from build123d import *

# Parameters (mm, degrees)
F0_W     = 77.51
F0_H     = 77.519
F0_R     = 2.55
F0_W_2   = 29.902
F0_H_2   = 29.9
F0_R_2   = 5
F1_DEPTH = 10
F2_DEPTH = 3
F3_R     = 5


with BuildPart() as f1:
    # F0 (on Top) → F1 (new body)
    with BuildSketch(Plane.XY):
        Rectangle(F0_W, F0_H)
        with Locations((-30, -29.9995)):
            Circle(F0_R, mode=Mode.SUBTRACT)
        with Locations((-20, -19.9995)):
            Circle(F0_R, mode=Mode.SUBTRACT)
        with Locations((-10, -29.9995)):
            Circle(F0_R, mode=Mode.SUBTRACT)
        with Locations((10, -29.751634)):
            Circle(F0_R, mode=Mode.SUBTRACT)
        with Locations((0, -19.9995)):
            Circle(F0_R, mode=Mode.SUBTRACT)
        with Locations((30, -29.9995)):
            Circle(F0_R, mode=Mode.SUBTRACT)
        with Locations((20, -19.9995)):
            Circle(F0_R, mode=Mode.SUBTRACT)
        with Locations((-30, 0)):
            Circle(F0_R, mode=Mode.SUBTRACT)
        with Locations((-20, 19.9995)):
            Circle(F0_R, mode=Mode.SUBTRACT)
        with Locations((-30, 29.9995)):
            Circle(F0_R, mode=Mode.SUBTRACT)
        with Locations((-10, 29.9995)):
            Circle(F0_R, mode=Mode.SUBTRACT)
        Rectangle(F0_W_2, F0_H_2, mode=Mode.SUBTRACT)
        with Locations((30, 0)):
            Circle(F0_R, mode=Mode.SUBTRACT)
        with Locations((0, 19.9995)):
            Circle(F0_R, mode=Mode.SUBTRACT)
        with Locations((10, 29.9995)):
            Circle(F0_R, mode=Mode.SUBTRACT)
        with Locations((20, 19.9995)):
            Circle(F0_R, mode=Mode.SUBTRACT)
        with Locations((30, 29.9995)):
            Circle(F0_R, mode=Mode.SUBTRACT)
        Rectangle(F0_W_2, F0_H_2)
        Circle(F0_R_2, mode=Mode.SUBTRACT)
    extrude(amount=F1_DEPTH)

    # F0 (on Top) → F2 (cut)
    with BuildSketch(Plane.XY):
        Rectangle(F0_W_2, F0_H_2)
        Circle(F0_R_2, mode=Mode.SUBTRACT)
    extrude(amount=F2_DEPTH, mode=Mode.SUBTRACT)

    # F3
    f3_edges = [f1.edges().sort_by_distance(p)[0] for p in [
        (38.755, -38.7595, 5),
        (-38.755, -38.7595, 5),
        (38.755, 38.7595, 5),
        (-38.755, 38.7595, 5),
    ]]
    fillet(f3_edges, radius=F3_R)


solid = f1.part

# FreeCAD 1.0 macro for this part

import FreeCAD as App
import Part
import Sketcher
from FreeCAD import Vector


def edges_at(feature, points):
    """Names of the edges that pass closest to the given points."""
    edges = feature.Shape.Edges
    near = lambda p: min(range(len(edges)), key=lambda i: edges[i].distToShape(Part.Vertex(*p))[0])
    return sorted({f"Edge{near(p) + 1}" for p in points})


def add_polygon(sketch, points):
    """Adds a closed chain of lines whose ends are joined by coincident constraints."""
    first, n = sketch.GeometryCount, len(points)
    for a, b in zip(points, points[1:] + points[:1]):
        sketch.addGeometry(Part.LineSegment(App.Vector(*a, 0), App.Vector(*b, 0)), False)
    for i in range(n):
        sketch.addConstraint(Sketcher.Constraint("Coincident", first + i, 2, first + (i + 1) % n, 1))

doc = App.newDocument("Part")
params = doc.addObject("Spreadsheet::Sheet", "Params")
for row, (alias, value) in enumerate([
    ("sketch1_diameter", "10 mm"),
    ("sketch1_diameter2", "5.1 mm"),
    ("sketch1_width", "77.51 mm"),
    ("pad1_length", "10 mm"),
    ("sketch2_diameter", "10 mm"),
    ("sketch2_height", "29.9 mm"),
    ("pocket1_length", "3 mm"),
    ("fillet_radius", "5 mm"),
], start=1):
    params.set(f"A{row}", alias)
    params.set(f"B{row}", "=" + value)
    params.setAlias(f"B{row}", alias)

body = doc.addObject("PartDesign::Body", "Body")

# Sketch on XY plane
sketch1 = body.newObject("Sketcher::SketchObject", "Sketch")
sketch1.AttachmentSupport = (doc.getObject("XY_Plane"), [""])
sketch1.MapMode = "FlatFace"
add_polygon(sketch1, [(-38.8, 38.8), (-38.8, -38.8), (38.8, -38.8), (38.8, 38.8)])  # lines 0-3
sketch1.addGeometry(Part.Circle(Vector(-30, -30, 0), Vector(0, 0, 1), 2.5), False)  # 4
sketch1.addGeometry(Part.Circle(Vector(-20, -20, 0), Vector(0, 0, 1), 2.5), False)  # 5
sketch1.addGeometry(Part.Circle(Vector(-10, -30, 0), Vector(0, 0, 1), 2.5), False)  # 6
sketch1.addGeometry(Part.Circle(Vector(10, -29.8, 0), Vector(0, 0, 1), 2.5), False)  # 7
sketch1.addGeometry(Part.Circle(Vector(0, -20, 0), Vector(0, 0, 1), 2.5), False)  # 8
sketch1.addGeometry(Part.Circle(Vector(30, -30, 0), Vector(0, 0, 1), 2.5), False)  # 9
sketch1.addGeometry(Part.Circle(Vector(20, -20, 0), Vector(0, 0, 1), 2.5), False)  # 10
sketch1.addGeometry(Part.Circle(Vector(-30, 0, 0), Vector(0, 0, 1), 2.5), False)  # 11
sketch1.addGeometry(Part.Circle(Vector(-20, 20, 0), Vector(0, 0, 1), 2.5), False)  # 12
sketch1.addGeometry(Part.Circle(Vector(-30, 30, 0), Vector(0, 0, 1), 2.5), False)  # 13
sketch1.addGeometry(Part.Circle(Vector(-10, 30, 0), Vector(0, 0, 1), 2.5), False)  # 14
sketch1.addGeometry(Part.Circle(Vector(0, 0, 0), Vector(0, 0, 1), 5), False)  # 15
sketch1.addGeometry(Part.Circle(Vector(30, 0, 0), Vector(0, 0, 1), 2.5), False)  # 16
sketch1.addGeometry(Part.Circle(Vector(0, 20, 0), Vector(0, 0, 1), 2.5), False)  # 17
sketch1.addGeometry(Part.Circle(Vector(10, 30, 0), Vector(0, 0, 1), 2.5), False)  # 18
sketch1.addGeometry(Part.Circle(Vector(20, 20, 0), Vector(0, 0, 1), 2.5), False)  # 19
sketch1.addGeometry(Part.Circle(Vector(30, 30, 0), Vector(0, 0, 1), 2.5), False)  # 20
sketch1.addConstraint([
    Sketcher.Constraint("Vertical", 0),
    Sketcher.Constraint("Horizontal", 1),
    Sketcher.Constraint("Vertical", 2),
    Sketcher.Constraint("Horizontal", 3),
    Sketcher.Constraint("Coincident", 15, 3, -1, 1),
    Sketcher.Constraint("Equal", 4, 5),
    Sketcher.Constraint("Equal", 5, 6),
    Sketcher.Constraint("Equal", 6, 7),
    Sketcher.Constraint("Equal", 7, 8),
    Sketcher.Constraint("Equal", 8, 9),
    Sketcher.Constraint("Equal", 9, 10),
    Sketcher.Constraint("Equal", 10, 11),
    Sketcher.Constraint("Equal", 11, 12),
    Sketcher.Constraint("Equal", 12, 13),
    Sketcher.Constraint("Equal", 13, 14),
    Sketcher.Constraint("Equal", 14, 16),
    Sketcher.Constraint("Equal", 16, 17),
    Sketcher.Constraint("Equal", 17, 18),
    Sketcher.Constraint("Equal", 18, 19),
    Sketcher.Constraint("Equal", 19, 20),
    Sketcher.Constraint("Symmetric", 10, 3, 12, 3, -1, 1),
    Sketcher.Constraint("Symmetric", 9, 3, 13, 3, -1, 1),
    Sketcher.Constraint("Symmetric", 11, 3, 16, 3, -1, 1),
    Sketcher.Constraint("Symmetric", 8, 3, 17, 3, -1, 1),
    Sketcher.Constraint("Symmetric", 6, 3, 18, 3, -1, 1),
    Sketcher.Constraint("Symmetric", 5, 3, 19, 3, -1, 1),
    Sketcher.Constraint("Symmetric", 4, 3, 20, 3, -1, 1),
    Sketcher.Constraint("Symmetric", 0, 2, 2, 2, -1, 1),
    Sketcher.Constraint("Symmetric", 4, 3, 9, 3, -2),
    Sketcher.Constraint("Symmetric", 5, 3, 10, 3, -2),
    Sketcher.Constraint("Symmetric", 14, 3, 18, 3, -2),
    Sketcher.Constraint("PointOnObject", 8, 3, -2),
    Sketcher.Constraint("PointOnObject", 11, 3, -1),
    Sketcher.Constraint("Horizontal", 4, 3, 6, 3),
    Sketcher.Constraint("Horizontal", 5, 3, 8, 3),
    Sketcher.Constraint("Vertical", 4, 3, 11, 3),
    Sketcher.Constraint("Vertical", 7, 3, 18, 3),
    Sketcher.Constraint("Diameter", 15, 10.0),
    Sketcher.Constraint("Diameter", 4, 5.1),
    Sketcher.Constraint("DistanceX", 4, 3, -1, 1, 30.0),
    Sketcher.Constraint("DistanceX", 5, 3, -1, 1, 20.0),
    Sketcher.Constraint("DistanceX", 6, 3, -1, 1, 10.0),
    Sketcher.Constraint("DistanceY", 4, 3, 5, 3, 10.0),
    Sketcher.Constraint("DistanceX", 1, 1, 1, 2, 77.51),
    Sketcher.Constraint("DistanceY", 0, 2, 0, 1, 77.519),
    Sketcher.Constraint("DistanceY", 0, 2, 4, 3, 8.76),
    Sketcher.Constraint("DistanceY", 7, 3, -1, 1, 29.751634),
])
sketch1.setExpression("Constraints[41]", "Params.sketch1_diameter")
sketch1.setExpression("Constraints[42]", "Params.sketch1_diameter2")
sketch1.setExpression("Constraints[47]", "Params.sketch1_width")
pad1 = body.newObject("PartDesign::Pad", "Pad")
pad1.Profile = sketch1
pad1.setExpression("Length", "Params.pad1_length")

# Sketch on XY plane
sketch2 = body.newObject("Sketcher::SketchObject", "Sketch001")
sketch2.AttachmentSupport = (doc.getObject("XY_Plane"), [""])
sketch2.MapMode = "FlatFace"
add_polygon(sketch2, [(-15, 15), (-15, -15), (15, -15), (15, 15)])  # lines 0-3
sketch2.addGeometry(Part.Circle(Vector(0, 0, 0), Vector(0, 0, 1), 5), False)  # 4
sketch2.addConstraint([
    Sketcher.Constraint("Vertical", 0),
    Sketcher.Constraint("Horizontal", 1),
    Sketcher.Constraint("Vertical", 2),
    Sketcher.Constraint("Horizontal", 3),
    Sketcher.Constraint("Coincident", 4, 3, -1, 1),
    Sketcher.Constraint("Symmetric", 0, 2, 2, 2, -1, 1),
    Sketcher.Constraint("Diameter", 4, 10.0),
    Sketcher.Constraint("DistanceY", 0, 2, 0, 1, 29.9),
    Sketcher.Constraint("DistanceX", 1, 1, 1, 2, 29.902),
])
sketch2.setExpression("Constraints[10]", "Params.sketch2_diameter")
sketch2.setExpression("Constraints[11]", "Params.sketch2_height")
pocket1 = body.newObject("PartDesign::Pocket", "Pocket")
pocket1.Profile = sketch2
pocket1.setExpression("Length", "Params.pocket1_length")
pocket1.Reversed = True
doc.recompute()

fillet = body.newObject("PartDesign::Fillet", "Fillet")
fillet.Base = (pocket1, edges_at(pocket1, [
    (38.755, -38.76, 5),
    (-38.755, -38.76, 5),
    (38.755, 38.76, 5),
    (-38.755, 38.76, 5),
]))
fillet.setExpression("Radius", "Params.fillet_radius")

doc.recompute()
